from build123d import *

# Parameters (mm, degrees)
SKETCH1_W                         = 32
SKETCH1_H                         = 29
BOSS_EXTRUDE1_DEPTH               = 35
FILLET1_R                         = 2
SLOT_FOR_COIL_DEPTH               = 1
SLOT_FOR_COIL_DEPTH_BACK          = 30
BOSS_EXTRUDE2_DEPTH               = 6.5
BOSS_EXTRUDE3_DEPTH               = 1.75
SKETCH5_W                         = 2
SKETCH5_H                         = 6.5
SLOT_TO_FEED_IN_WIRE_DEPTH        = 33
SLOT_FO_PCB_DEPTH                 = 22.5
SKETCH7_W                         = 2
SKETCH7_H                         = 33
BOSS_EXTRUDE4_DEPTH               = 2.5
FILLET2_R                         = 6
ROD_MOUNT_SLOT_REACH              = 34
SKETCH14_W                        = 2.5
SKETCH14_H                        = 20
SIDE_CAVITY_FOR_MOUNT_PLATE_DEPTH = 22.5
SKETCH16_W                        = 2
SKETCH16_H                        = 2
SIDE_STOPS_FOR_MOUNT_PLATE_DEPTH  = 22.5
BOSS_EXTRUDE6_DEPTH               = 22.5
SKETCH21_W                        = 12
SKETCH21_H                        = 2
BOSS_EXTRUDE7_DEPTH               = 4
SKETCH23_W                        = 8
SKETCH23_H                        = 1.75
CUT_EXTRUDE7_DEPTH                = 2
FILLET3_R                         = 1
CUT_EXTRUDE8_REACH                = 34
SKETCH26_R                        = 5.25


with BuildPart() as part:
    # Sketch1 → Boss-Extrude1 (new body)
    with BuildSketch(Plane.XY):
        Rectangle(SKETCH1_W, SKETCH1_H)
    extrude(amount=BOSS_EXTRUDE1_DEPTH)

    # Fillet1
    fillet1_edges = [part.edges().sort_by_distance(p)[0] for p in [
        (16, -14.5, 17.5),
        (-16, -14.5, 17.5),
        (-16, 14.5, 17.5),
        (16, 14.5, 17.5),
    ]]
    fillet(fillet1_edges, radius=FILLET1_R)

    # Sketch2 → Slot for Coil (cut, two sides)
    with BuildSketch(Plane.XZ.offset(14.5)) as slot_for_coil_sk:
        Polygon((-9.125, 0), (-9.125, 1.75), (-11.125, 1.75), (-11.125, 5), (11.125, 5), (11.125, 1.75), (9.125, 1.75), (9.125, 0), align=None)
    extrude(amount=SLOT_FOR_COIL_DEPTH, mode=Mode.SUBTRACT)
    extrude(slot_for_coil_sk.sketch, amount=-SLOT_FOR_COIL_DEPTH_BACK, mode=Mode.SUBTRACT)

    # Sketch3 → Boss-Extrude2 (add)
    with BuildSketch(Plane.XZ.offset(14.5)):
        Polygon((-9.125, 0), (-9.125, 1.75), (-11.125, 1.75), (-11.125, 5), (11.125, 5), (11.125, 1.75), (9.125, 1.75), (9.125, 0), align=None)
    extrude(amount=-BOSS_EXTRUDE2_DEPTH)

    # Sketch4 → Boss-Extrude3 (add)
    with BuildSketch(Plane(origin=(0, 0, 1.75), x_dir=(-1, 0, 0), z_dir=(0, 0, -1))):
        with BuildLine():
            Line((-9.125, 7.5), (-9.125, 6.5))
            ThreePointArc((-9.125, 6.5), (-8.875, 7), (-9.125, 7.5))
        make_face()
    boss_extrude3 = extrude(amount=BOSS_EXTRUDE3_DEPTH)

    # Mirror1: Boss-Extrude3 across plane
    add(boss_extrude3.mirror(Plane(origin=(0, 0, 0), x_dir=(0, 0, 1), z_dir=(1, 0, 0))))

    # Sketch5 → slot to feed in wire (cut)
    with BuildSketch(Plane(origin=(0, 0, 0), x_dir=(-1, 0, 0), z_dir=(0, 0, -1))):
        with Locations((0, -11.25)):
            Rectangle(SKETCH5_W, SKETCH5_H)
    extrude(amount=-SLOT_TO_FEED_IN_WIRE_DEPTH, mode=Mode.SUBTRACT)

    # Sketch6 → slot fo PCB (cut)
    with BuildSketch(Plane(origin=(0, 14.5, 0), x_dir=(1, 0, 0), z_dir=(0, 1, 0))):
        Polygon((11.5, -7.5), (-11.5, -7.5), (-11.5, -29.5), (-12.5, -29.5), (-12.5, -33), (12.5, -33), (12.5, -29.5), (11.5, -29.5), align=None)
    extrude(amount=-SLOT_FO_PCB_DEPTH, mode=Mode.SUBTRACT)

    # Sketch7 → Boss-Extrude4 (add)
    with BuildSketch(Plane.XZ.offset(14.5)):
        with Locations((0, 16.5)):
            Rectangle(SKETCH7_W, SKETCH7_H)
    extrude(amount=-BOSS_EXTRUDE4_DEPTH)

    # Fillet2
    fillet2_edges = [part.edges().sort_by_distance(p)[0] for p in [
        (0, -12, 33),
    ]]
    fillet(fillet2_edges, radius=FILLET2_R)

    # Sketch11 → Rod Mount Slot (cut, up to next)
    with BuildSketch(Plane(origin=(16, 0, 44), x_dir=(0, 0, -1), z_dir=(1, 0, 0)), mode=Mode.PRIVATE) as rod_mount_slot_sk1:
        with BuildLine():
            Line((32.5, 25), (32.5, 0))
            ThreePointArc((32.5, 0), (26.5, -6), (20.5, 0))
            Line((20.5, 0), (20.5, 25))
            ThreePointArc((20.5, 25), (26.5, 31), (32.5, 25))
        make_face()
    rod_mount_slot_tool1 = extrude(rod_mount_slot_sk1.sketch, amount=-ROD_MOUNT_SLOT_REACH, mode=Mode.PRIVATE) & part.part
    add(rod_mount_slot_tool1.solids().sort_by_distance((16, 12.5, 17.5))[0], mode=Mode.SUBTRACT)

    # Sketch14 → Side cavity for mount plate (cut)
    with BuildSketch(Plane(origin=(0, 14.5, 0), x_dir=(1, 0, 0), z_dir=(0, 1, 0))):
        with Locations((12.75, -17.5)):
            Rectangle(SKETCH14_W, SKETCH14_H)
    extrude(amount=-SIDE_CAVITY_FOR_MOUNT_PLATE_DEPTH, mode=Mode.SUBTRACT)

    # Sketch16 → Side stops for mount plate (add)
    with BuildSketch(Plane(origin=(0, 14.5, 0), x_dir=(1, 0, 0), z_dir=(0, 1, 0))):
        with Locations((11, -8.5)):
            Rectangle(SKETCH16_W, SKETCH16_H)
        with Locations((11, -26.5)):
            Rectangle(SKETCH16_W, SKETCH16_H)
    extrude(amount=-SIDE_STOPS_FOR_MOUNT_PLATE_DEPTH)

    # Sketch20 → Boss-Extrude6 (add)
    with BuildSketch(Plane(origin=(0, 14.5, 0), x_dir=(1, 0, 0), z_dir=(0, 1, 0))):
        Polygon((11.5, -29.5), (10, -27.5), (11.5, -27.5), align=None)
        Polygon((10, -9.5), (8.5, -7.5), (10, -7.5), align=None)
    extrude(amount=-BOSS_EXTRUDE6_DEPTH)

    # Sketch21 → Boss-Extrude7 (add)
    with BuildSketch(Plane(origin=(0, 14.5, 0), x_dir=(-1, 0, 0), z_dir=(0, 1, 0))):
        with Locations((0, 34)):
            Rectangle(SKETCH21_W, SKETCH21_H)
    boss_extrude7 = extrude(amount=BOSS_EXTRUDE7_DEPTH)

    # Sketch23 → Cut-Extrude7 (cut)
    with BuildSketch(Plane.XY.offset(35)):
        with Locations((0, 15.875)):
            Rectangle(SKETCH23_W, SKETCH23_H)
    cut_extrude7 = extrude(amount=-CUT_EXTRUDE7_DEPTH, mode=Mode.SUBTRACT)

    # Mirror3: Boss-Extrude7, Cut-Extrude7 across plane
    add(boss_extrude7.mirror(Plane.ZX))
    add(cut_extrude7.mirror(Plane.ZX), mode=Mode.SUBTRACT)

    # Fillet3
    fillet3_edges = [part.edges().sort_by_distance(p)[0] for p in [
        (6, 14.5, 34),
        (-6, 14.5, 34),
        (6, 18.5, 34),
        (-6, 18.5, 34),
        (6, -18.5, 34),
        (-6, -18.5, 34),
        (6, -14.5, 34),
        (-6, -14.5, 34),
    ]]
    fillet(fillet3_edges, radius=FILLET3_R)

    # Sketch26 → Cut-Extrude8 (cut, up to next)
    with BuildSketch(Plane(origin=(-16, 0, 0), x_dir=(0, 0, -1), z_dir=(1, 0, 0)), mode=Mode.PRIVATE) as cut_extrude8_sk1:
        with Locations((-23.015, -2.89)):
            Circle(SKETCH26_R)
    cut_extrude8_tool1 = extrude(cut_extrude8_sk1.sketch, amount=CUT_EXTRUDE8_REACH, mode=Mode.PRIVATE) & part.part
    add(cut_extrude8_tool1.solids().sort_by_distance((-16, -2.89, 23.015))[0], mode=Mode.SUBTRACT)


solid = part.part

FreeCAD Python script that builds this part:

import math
import FreeCAD as App
import Part
import Sketcher
Q = App.Units.Quantity


def edges_at(feature, points):
    """Names of the edges that pass closest to the given points."""
    edges = feature.Shape.Edges
    near = lambda p: min(range(len(edges)), key=lambda i: edges[i].distToShape(Part.Vertex(*p))[0])
    return sorted({f"Edge{near(p) + 1}" for p in points})

doc = App.newDocument("Part")
body = doc.addObject("PartDesign::Body", "Body")

sketch1 = body.newObject("Sketcher::SketchObject", "Sketch")
sketch1.AttachmentSupport = (doc.getObject("XY_Plane"), [""])
sketch1.MapMode = "FlatFace"
sketch1.addGeometry([
    Part.LineSegment(App.Vector(-16, 14.5, 0), App.Vector(-16, -14.5, 0)),
    Part.LineSegment(App.Vector(-16, -14.5, 0), App.Vector(16, -14.5, 0)),
    Part.LineSegment(App.Vector(16, -14.5, 0), App.Vector(16, 14.5, 0)),
    Part.LineSegment(App.Vector(16, 14.5, 0), App.Vector(-16, 14.5, 0)),
], False)
sketch1.addConstraint([
    Sketcher.Constraint("Coincident", 0, 2, 1, 1),
    Sketcher.Constraint("Coincident", 1, 2, 2, 1),
    Sketcher.Constraint("Coincident", 2, 2, 3, 1),
    Sketcher.Constraint("Coincident", 3, 2, 0, 1),
    Sketcher.Constraint("Vertical", 0),
    Sketcher.Constraint("Horizontal", 1),
    Sketcher.Constraint("Vertical", 2),
    Sketcher.Constraint("Horizontal", 3),
    Sketcher.Constraint("Symmetric", 0, 2, 2, 2, -1, 1),
    Sketcher.Constraint("DistanceX", 1, 1, 1, 2, Q("32 mm")),
    Sketcher.Constraint("DistanceY", 0, 2, 0, 1, Q("29 mm")),
])
pad1 = body.newObject("PartDesign::Pad", "Pad")
pad1.Profile = sketch1
pad1.Length = 35
doc.recompute()

fillet = body.newObject("PartDesign::Fillet", "Fillet")
fillet.Base = (pad1, edges_at(pad1, [
    (16, -14.5, 17.5),
    (-16, -14.5, 17.5),
    (-16, 14.5, 17.5),
    (16, 14.5, 17.5),
]))
fillet.Radius = 2

sketch2 = body.newObject("Sketcher::SketchObject", "Sketch001")
sketch2.AttachmentSupport = (doc.getObject("XZ_Plane"), [""])
sketch2.MapMode = "FlatFace"
sketch2.AttachmentOffset = App.Placement(App.Vector(0, 0, 14.5), App.Rotation())
sketch2.addGeometry([
    Part.LineSegment(App.Vector(-9.125, 1.75, 0), App.Vector(-9.125, 0, 0)),
    Part.LineSegment(App.Vector(-9.125, 0, 0), App.Vector(9.125, 0, 0)),
    Part.LineSegment(App.Vector(9.125, 0, 0), App.Vector(9.125, 1.75, 0)),
    Part.LineSegment(App.Vector(9.125, 1.75, 0), App.Vector(11.125, 1.75, 0)),
    Part.LineSegment(App.Vector(11.125, 1.75, 0), App.Vector(11.125, 5, 0)),
    Part.LineSegment(App.Vector(11.125, 5, 0), App.Vector(-11.125, 5, 0)),
    Part.LineSegment(App.Vector(-11.125, 5, 0), App.Vector(-11.125, 1.75, 0)),
    Part.LineSegment(App.Vector(-11.125, 1.75, 0), App.Vector(-9.125, 1.75, 0)),
], False)
sketch2.addConstraint([
    Sketcher.Constraint("Coincident", 0, 2, 1, 1),
    Sketcher.Constraint("Coincident", 1, 2, 2, 1),
    Sketcher.Constraint("Coincident", 2, 2, 3, 1),
    Sketcher.Constraint("Coincident", 3, 2, 4, 1),
    Sketcher.Constraint("Coincident", 4, 2, 5, 1),
    Sketcher.Constraint("Coincident", 5, 2, 6, 1),
    Sketcher.Constraint("Coincident", 6, 2, 7, 1),
    Sketcher.Constraint("Coincident", 7, 2, 0, 1),
    Sketcher.Constraint("Vertical", 0),
    Sketcher.Constraint("Horizontal", 1),
    Sketcher.Constraint("Vertical", 2),
    Sketcher.Constraint("Horizontal", 3),
    Sketcher.Constraint("Vertical", 4),
    Sketcher.Constraint("Horizontal", 5),
    Sketcher.Constraint("Vertical", 6),
    Sketcher.Constraint("Horizontal", 7),
    Sketcher.Constraint("Symmetric", 0, 2, 1, 2, -1, 1),
    Sketcher.Constraint("Symmetric", 3, 2, 6, 2, -2),
    Sketcher.Constraint("DistanceX", 3, 1, 3, 2, Q("2 mm")),
    Sketcher.Constraint("DistanceY", -1, 1, 4, 2, Q("5 mm")),
    Sketcher.Constraint("DistanceX", 1, 1, 1, 2, Q("18.25 mm")),
    Sketcher.Constraint("DistanceY", 0, 2, 0, 1, Q("1.75 mm")),
])
pocket1 = body.newObject("PartDesign::Pocket", "Pocket")
pocket1.Profile = sketch2
pocket1.Type = "ThroughAll"
pocket1.Midplane = True

sketch3 = body.newObject("Sketcher::SketchObject", "Sketch002")
sketch3.AttachmentSupport = (doc.getObject("XZ_Plane"), [""])
sketch3.MapMode = "FlatFace"
sketch3.AttachmentOffset = App.Placement(App.Vector(0, 0, 14.5), App.Rotation())
sketch3.addGeometry([
    Part.LineSegment(App.Vector(-9.125, 1.75, 0), App.Vector(-9.125, 0, 0)),
    Part.LineSegment(App.Vector(-9.125, 0, 0), App.Vector(9.125, 0, 0)),
    Part.LineSegment(App.Vector(9.125, 0, 0), App.Vector(9.125, 1.75, 0)),
    Part.LineSegment(App.Vector(9.125, 1.75, 0), App.Vector(11.125, 1.75, 0)),
    Part.LineSegment(App.Vector(11.125, 1.75, 0), App.Vector(11.125, 5, 0)),
    Part.LineSegment(App.Vector(11.125, 5, 0), App.Vector(-11.125, 5, 0)),
    Part.LineSegment(App.Vector(-11.125, 5, 0), App.Vector(-11.125, 1.75, 0)),
    Part.LineSegment(App.Vector(-11.125, 1.75, 0), App.Vector(-9.125, 1.75, 0)),
], False)
sketch3.addConstraint([
    Sketcher.Constraint("Coincident", 0, 2, 1, 1),
    Sketcher.Constraint("Coincident", 1, 2, 2, 1),
    Sketcher.Constraint("Coincident", 2, 2, 3, 1),
    Sketcher.Constraint("Coincident", 3, 2, 4, 1),
    Sketcher.Constraint("Coincident", 4, 2, 5, 1),
    Sketcher.Constraint("Coincident", 5, 2, 6, 1),
    Sketcher.Constraint("Coincident", 6, 2, 7, 1),
    Sketcher.Constraint("Coincident", 7, 2, 0, 1),
    Sketcher.Constraint("Vertical", 0),
    Sketcher.Constraint("Horizontal", 1),
    Sketcher.Constraint("Vertical", 2),
    Sketcher.Constraint("Horizontal", 3),
    Sketcher.Constraint("Vertical", 4),
    Sketcher.Constraint("Horizontal", 5),
    Sketcher.Constraint("Vertical", 6),
    Sketcher.Constraint("Horizontal", 7),
    Sketcher.Constraint("Symmetric", 0, 2, 1, 2, -1, 1),
    Sketcher.Constraint("Symmetric", 3, 2, 6, 2, -2),
    Sketcher.Constraint("DistanceX", 3, 1, 3, 2, Q("2 mm")),
    Sketcher.Constraint("DistanceY", -1, 1, 4, 2, Q("5 mm")),
    Sketcher.Constraint("DistanceX", 1, 1, 1, 2, Q("18.25 mm")),
    Sketcher.Constraint("DistanceY", 0, 2, 0, 1, Q("1.75 mm")),
])
pad2 = body.newObject("PartDesign::Pad", "Pad001")
pad2.Profile = sketch3
pad2.Length = 6.5
pad2.Reversed = True

sketch4 = body.newObject("Sketcher::SketchObject", "Sketch003")
sketch4.AttachmentSupport = (doc.getObject("XY_Plane"), [""])
sketch4.MapMode = "FlatFace"
sketch4.AttachmentOffset = App.Placement(App.Vector(0, 0, 1.75), App.Rotation())
sketch4.addGeometry([
    Part.LineSegment(App.Vector(9.125, 7.5, 0), App.Vector(9.125, 6.5, 0)),
    Part.ArcOfCircle(Part.Circle(App.Vector(9.5, 7, 0), App.Vector(0, 0, 1), 0.625), math.radians(126.869898), math.radians(233.130102)),
], False)
sketch4.addConstraint([
    Sketcher.Constraint("Coincident", 0, 1, 1, 1),
    Sketcher.Constraint("Coincident", 1, 2, 0, 2),
    Sketcher.Constraint("Vertical", 0),
    Sketcher.Constraint("DistanceY", 0, 2, 0, 1, Q("1 mm")),
    Sketcher.Constraint("DistanceY", -1, 1, 1, 3, Q("7 mm")),
    Sketcher.Constraint("Radius", 1, Q("0.625 mm")),
    Sketcher.Constraint("DistanceX", -1, 1, 1, 3, Q("9.5 mm")),
])
pad3 = body.newObject("PartDesign::Pad", "Pad002")
pad3.Profile = sketch4
pad3.Length = 1.75
pad3.Reversed = True
doc.recompute()

mirrored = body.newObject("PartDesign::Mirrored", "Mirrored")
mirrored.Originals = [pad3]
mirrored.MirrorPlane = (doc.getObject("YZ_Plane"), [""])
body.Tip = mirrored

sketch5 = body.newObject("Sketcher::SketchObject", "Sketch004")
sketch5.AttachmentSupport = (doc.getObject("XY_Plane"), [""])
sketch5.MapMode = "FlatFace"
sketch5.addGeometry([
    Part.LineSegment(App.Vector(1, -8, 0), App.Vector(1, -14.5, 0)),
    Part.LineSegment(App.Vector(1, -14.5, 0), App.Vector(-1, -14.5, 0)),
    Part.LineSegment(App.Vector(-1, -14.5, 0), App.Vector(-1, -8, 0)),
    Part.LineSegment(App.Vector(-1, -8, 0), App.Vector(1, -8, 0)),
], False)
sketch5.addConstraint([
    Sketcher.Constraint("Coincident", 0, 2, 1, 1),
    Sketcher.Constraint("Coincident", 1, 2, 2, 1),
    Sketcher.Constraint("Coincident", 2, 2, 3, 1),
    Sketcher.Constraint("Coincident", 3, 2, 0, 1),
    Sketcher.Constraint("Vertical", 0),
    Sketcher.Constraint("Horizontal", 1),
    Sketcher.Constraint("Vertical", 2),
    Sketcher.Constraint("Horizontal", 3),
    Sketcher.Constraint("DistanceX", 1, 2, 1, 1, Q("2 mm")),
    Sketcher.Constraint("DistanceY", 0, 2, 0, 1, Q("6.5 mm")),
    Sketcher.Constraint("DistanceX", -1, 1, 0, 2, Q("1 mm")),
    Sketcher.Constraint("DistanceY", 2, 2, -1, 1, Q("8 mm")),
])
pocket2 = body.newObject("PartDesign::Pocket", "Pocket001")
pocket2.Profile = sketch5
pocket2.Length = 33
pocket2.Reversed = True

sketch6 = body.newObject("Sketcher::SketchObject", "Sketch005")
sketch6.AttachmentSupport = (doc.getObject("XZ_Plane"), [""])
sketch6.MapMode = "FlatFace"
sketch6.AttachmentOffset = App.Placement(App.Vector(0, 0, -14.5), App.Rotation())
sketch6.addGeometry([
    Part.LineSegment(App.Vector(11.5, 7.5, 0), App.Vector(-11.5, 7.5, 0)),
    Part.LineSegment(App.Vector(-11.5, 7.5, 0), App.Vector(-11.5, 29.5, 0)),
    Part.LineSegment(App.Vector(-11.5, 29.5, 0), App.Vector(-12.5, 29.5, 0)),
    Part.LineSegment(App.Vector(-12.5, 29.5, 0), App.Vector(-12.5, 33, 0)),
    Part.LineSegment(App.Vector(-12.5, 33, 0), App.Vector(12.5, 33, 0)),
    Part.LineSegment(App.Vector(12.5, 33, 0), App.Vector(12.5, 29.5, 0)),
    Part.LineSegment(App.Vector(12.5, 29.5, 0), App.Vector(11.5, 29.5, 0)),
    Part.LineSegment(App.Vector(11.5, 29.5, 0), App.Vector(11.5, 7.5, 0)),
], False)
sketch6.addConstraint([
    Sketcher.Constraint("Coincident", 0, 2, 1, 1),
    Sketcher.Constraint("Coincident", 1, 2, 2, 1),
    Sketcher.Constraint("Coincident", 2, 2, 3, 1),
    Sketcher.Constraint("Coincident", 3, 2, 4, 1),
    Sketcher.Constraint("Coincident", 4, 2, 5, 1),
    Sketcher.Constraint("Coincident", 5, 2, 6, 1),
    Sketcher.Constraint("Coincident", 6, 2, 7, 1),
    Sketcher.Constraint("Coincident", 7, 2, 0, 1),
    Sketcher.Constraint("Horizontal", 0),
    Sketcher.Constraint("Vertical", 1),
    Sketcher.Constraint("Horizontal", 2),
    Sketcher.Constraint("Vertical", 3),
    Sketcher.Constraint("Horizontal", 4),
    Sketcher.Constraint("Vertical", 5),
    Sketcher.Constraint("Horizontal", 6),
    Sketcher.Constraint("Vertical", 7),
    Sketcher.Constraint("Symmetric", 2, 2, 5, 2, -2),
    Sketcher.Constraint("Equal", 2, 6),
    Sketcher.Constraint("DistanceX", 0, 2, 0, 1, Q("23 mm")),
    Sketcher.Constraint("DistanceX", 2, 2, 2, 1, Q("1 mm")),
    Sketcher.Constraint("DistanceY", 1, 1, 1, 2, Q("22 mm")),
    Sketcher.Constraint("DistanceY", 3, 1, 3, 2, Q("3.5 mm")),
    Sketcher.Constraint("DistanceY", -1, 1, 3, 2, Q("33 mm")),
])
pocket3 = body.newObject("PartDesign::Pocket", "Pocket002")
pocket3.Profile = sketch6
pocket3.Length = 22.5
pocket3.Reversed = True

sketch7 = body.newObject("Sketcher::SketchObject", "Sketch006")
sketch7.AttachmentSupport = (doc.getObject("XZ_Plane"), [""])
sketch7.MapMode = "FlatFace"
sketch7.AttachmentOffset = App.Placement(App.Vector(0, 0, 14.5), App.Rotation())
sketch7.addGeometry([
    Part.LineSegment(App.Vector(-1, 33, 0), App.Vector(-1, 0, 0)),
    Part.LineSegment(App.Vector(-1, 0, 0), App.Vector(1, 0, 0)),
    Part.LineSegment(App.Vector(1, 0, 0), App.Vector(1, 33, 0)),
    Part.LineSegment(App.Vector(1, 33, 0), App.Vector(-1, 33, 0)),
], False)
sketch7.addConstraint([
    Sketcher.Constraint("Coincident", 0, 2, 1, 1),
    Sketcher.Constraint("Coincident", 1, 2, 2, 1),
    Sketcher.Constraint("Coincident", 2, 2, 3, 1),
    Sketcher.Constraint("Coincident", 3, 2, 0, 1),
    Sketcher.Constraint("Vertical", 0),
    Sketcher.Constraint("Horizontal", 1),
    Sketcher.Constraint("Vertical", 2),
    Sketcher.Constraint("Horizontal", 3),
    Sketcher.Constraint("Symmetric", 0, 2, 1, 2, -1, 1),
    Sketcher.Constraint("DistanceX", 1, 1, 1, 2, Q("2 mm")),
    Sketcher.Constraint("DistanceY", 0, 2, 0, 1, Q("33 mm")),
])
pad4 = body.newObject("PartDesign::Pad", "Pad003")
pad4.Profile = sketch7
pad4.Length = 2.5
pad4.Reversed = True
doc.recompute()

fillet2 = body.newObject("PartDesign::Fillet", "Fillet001")
fillet2.Base = (pad4, edges_at(pad4, [(0, -12, 33)]))
fillet2.Radius = 6

sketch8 = body.newObject("Sketcher::SketchObject", "Sketch007")
sketch8.AttachmentSupport = (doc.getObject("YZ_Plane"), [""])
sketch8.MapMode = "FlatFace"
sketch8.AttachmentOffset = App.Placement(App.Vector(0, 0, 16), App.Rotation())
sketch8.addGeometry([
    Part.LineSegment(App.Vector(0, 11.5, 0), App.Vector(25, 11.5, 0)),
    Part.ArcOfCircle(Part.Circle(App.Vector(25, 17.5, 0), App.Vector(0, 0, 1), 6), math.radians(-90), math.radians(90)),
    Part.LineSegment(App.Vector(25, 23.5, 0), App.Vector(0, 23.5, 0)),
    Part.ArcOfCircle(Part.Circle(App.Vector(0, 17.5, 0), App.Vector(0, 0, 1), 6), math.radians(90), math.radians(270)),
], False)
sketch8.addConstraint([
    Sketcher.Constraint("Tangent", 0, 2, 1, 1),
    Sketcher.Constraint("Tangent", 1, 2, 2, 1),
    Sketcher.Constraint("Tangent", 2, 2, 3, 1),
    Sketcher.Constraint("Tangent", 3, 2, 0, 1),
    Sketcher.Constraint("Horizontal", 0),
    Sketcher.Constraint("Horizontal", 2),
    Sketcher.Constraint("PointOnObject", 3, 3, -2),
    Sketcher.Constraint("Radius", 1, Q("6 mm")),
    Sketcher.Constraint("DistanceX", 0, 1, 0, 2, Q("25 mm")),
    Sketcher.Constraint("DistanceY", -1, 1, 1, 3, Q("17.5 mm")),
])
pocket4 = body.newObject("PartDesign::Pocket", "Pocket003")
pocket4.Profile = sketch8
pocket4.Type = "UpToFirst"

sketch9 = body.newObject("Sketcher::SketchObject", "Sketch008")
sketch9.AttachmentSupport = (doc.getObject("XZ_Plane"), [""])
sketch9.MapMode = "FlatFace"
sketch9.AttachmentOffset = App.Placement(App.Vector(0, 0, -14.5), App.Rotation())
sketch9.addGeometry([
    Part.LineSegment(App.Vector(11.5, 7.5, 0), App.Vector(11.5, 27.5, 0)),
    Part.LineSegment(App.Vector(11.5, 27.5, 0), App.Vector(14, 27.5, 0)),
    Part.LineSegment(App.Vector(14, 27.5, 0), App.Vector(14, 7.5, 0)),
    Part.LineSegment(App.Vector(14, 7.5, 0), App.Vector(11.5, 7.5, 0)),
], False)
sketch9.addConstraint([
    Sketcher.Constraint("Coincident", 0, 2, 1, 1),
    Sketcher.Constraint("Coincident", 1, 2, 2, 1),
    Sketcher.Constraint("Coincident", 2, 2, 3, 1),
    Sketcher.Constraint("Coincident", 3, 2, 0, 1),
    Sketcher.Constraint("Vertical", 0),
    Sketcher.Constraint("Horizontal", 1),
    Sketcher.Constraint("Vertical", 2),
    Sketcher.Constraint("Horizontal", 3),
    Sketcher.Constraint("DistanceY", 0, 1, 0, 2, Q("20 mm")),
    Sketcher.Constraint("DistanceX", 1, 1, 1, 2, Q("2.5 mm")),
    Sketcher.Constraint("DistanceX", -1, 1, 1, 2, Q("14 mm")),
    Sketcher.Constraint("DistanceY", -1, 1, 0, 2, Q("27.5 mm")),
])
pocket5 = body.newObject("PartDesign::Pocket", "Pocket004")
pocket5.Profile = sketch9
pocket5.Length = 22.5
pocket5.Reversed = True

sketch10 = body.newObject("Sketcher::SketchObject", "Sketch009")
sketch10.AttachmentSupport = (doc.getObject("XZ_Plane"), [""])
sketch10.MapMode = "FlatFace"
sketch10.AttachmentOffset = App.Placement(App.Vector(0, 0, -14.5), App.Rotation())
sketch10.addGeometry([
    Part.LineSegment(App.Vector(10, 7.5, 0), App.Vector(10, 9.5, 0)),
    Part.LineSegment(App.Vector(10, 9.5, 0), App.Vector(12, 9.5, 0)),
    Part.LineSegment(App.Vector(12, 9.5, 0), App.Vector(12, 7.5, 0)),
    Part.LineSegment(App.Vector(12, 7.5, 0), App.Vector(10, 7.5, 0)),
    Part.LineSegment(App.Vector(10, 25.5, 0), App.Vector(10, 27.5, 0)),
    Part.LineSegment(App.Vector(10, 27.5, 0), App.Vector(12, 27.5, 0)),
    Part.LineSegment(App.Vector(12, 27.5, 0), App.Vector(12, 25.5, 0)),
    Part.LineSegment(App.Vector(12, 25.5, 0), App.Vector(10, 25.5, 0)),
], False)
sketch10.addConstraint([
    Sketcher.Constraint("Coincident", 0, 2, 1, 1),
    Sketcher.Constraint("Coincident", 1, 2, 2, 1),
    Sketcher.Constraint("Coincident", 2, 2, 3, 1),
    Sketcher.Constraint("Coincident", 3, 2, 0, 1),
    Sketcher.Constraint("Coincident", 4, 2, 5, 1),
    Sketcher.Constraint("Coincident", 5, 2, 6, 1),
    Sketcher.Constraint("Coincident", 6, 2, 7, 1),
    Sketcher.Constraint("Coincident", 7, 2, 4, 1),
    Sketcher.Constraint("Vertical", 0),
    Sketcher.Constraint("Horizontal", 1),
    Sketcher.Constraint("Vertical", 2),
    Sketcher.Constraint("Horizontal", 3),
    Sketcher.Constraint("Vertical", 4),
    Sketcher.Constraint("Horizontal", 5),
    Sketcher.Constraint("Vertical", 6),
    Sketcher.Constraint("Horizontal", 7),
    Sketcher.Constraint("Vertical", 3, 2, 4, 2),
    Sketcher.Constraint("Vertical", 2, 2, 5, 2),
    Sketcher.Constraint("Equal", 7, 0),
    Sketcher.Constraint("Equal", 2, 4),
    Sketcher.Constraint("DistanceX", 1, 1, 1, 2, Q("2 mm")),
    Sketcher.Constraint("DistanceX", -1, 1, 0, 2, Q("10 mm")),
    Sketcher.Constraint("DistanceY", 0, 2, 4, 2, Q("18 mm")),
    Sketcher.Constraint("DistanceY", -1, 1, 0, 2, Q("9.5 mm")),
])
pad5 = body.newObject("PartDesign::Pad", "Pad004")
pad5.Profile = sketch10
pad5.Length = 22.5

sketch11 = body.newObject("Sketcher::SketchObject", "Sketch010")
sketch11.AttachmentSupport = (doc.getObject("XZ_Plane"), [""])
sketch11.MapMode = "FlatFace"
sketch11.AttachmentOffset = App.Placement(App.Vector(0, 0, -14.5), App.Rotation())
sketch11.addGeometry([
    Part.LineSegment(App.Vector(10, 27.5, 0), App.Vector(11.5, 29.5, 0)),
    Part.LineSegment(App.Vector(11.5, 29.5, 0), App.Vector(11.5, 27.5, 0)),
    Part.LineSegment(App.Vector(11.5, 27.5, 0), App.Vector(10, 27.5, 0)),
    Part.LineSegment(App.Vector(8.5, 7.5, 0), App.Vector(10, 9.5, 0)),
    Part.LineSegment(App.Vector(10, 9.5, 0), App.Vector(10, 7.5, 0)),
    Part.LineSegment(App.Vector(10, 7.5, 0), App.Vector(8.5, 7.5, 0)),
], False)
sketch11.addConstraint([
    Sketcher.Constraint("Coincident", 0, 2, 1, 1),
    Sketcher.Constraint("Coincident", 1, 2, 2, 1),
    Sketcher.Constraint("Coincident", 2, 2, 0, 1),
    Sketcher.Constraint("Coincident", 3, 2, 4, 1),
    Sketcher.Constraint("Coincident", 4, 2, 5, 1),
    Sketcher.Constraint("Coincident", 5, 2, 3, 1),
    Sketcher.Constraint("Vertical", 1),
    Sketcher.Constraint("Horizontal", 2),
    Sketcher.Constraint("Vertical", 4),
    Sketcher.Constraint("Horizontal", 5),
    Sketcher.Constraint("Parallel", 0, 3),
    Sketcher.Constraint("Vertical", 2, 2, 3, 2),
    Sketcher.Constraint("Equal", 2, 5),
    Sketcher.Constraint("DistanceY", 1, 2, 1, 1, Q("2 mm")),
    Sketcher.Constraint("DistanceX", 2, 2, 2, 1, Q("1.5 mm")),
    Sketcher.Constraint("DistanceX", -1, 1, 2, 2, Q("10 mm")),
    Sketcher.Constraint("DistanceY", 3, 2, 2, 2, Q("18 mm")),
    Sketcher.Constraint("DistanceY", -1, 1, 0, 2, Q("29.5 mm")),
])
pad6 = body.newObject("PartDesign::Pad", "Pad005")
pad6.Profile = sketch11
pad6.Length = 22.5

sketch12 = body.newObject("Sketcher::SketchObject", "Sketch011")
sketch12.AttachmentSupport = (doc.getObject("XZ_Plane"), [""])
sketch12.MapMode = "FlatFace"
sketch12.AttachmentOffset = App.Placement(App.Vector(0, 0, -14.5), App.Rotation())
sketch12.addGeometry([
    Part.LineSegment(App.Vector(6, 35, 0), App.Vector(6, 33, 0)),
    Part.LineSegment(App.Vector(6, 33, 0), App.Vector(-6, 33, 0)),
    Part.LineSegment(App.Vector(-6, 33, 0), App.Vector(-6, 35, 0)),
    Part.LineSegment(App.Vector(-6, 35, 0), App.Vector(6, 35, 0)),
], False)
sketch12.addConstraint([
    Sketcher.Constraint("Coincident", 0, 2, 1, 1),
    Sketcher.Constraint("Coincident", 1, 2, 2, 1),
    Sketcher.Constraint("Coincident", 2, 2, 3, 1),
    Sketcher.Constraint("Coincident", 3, 2, 0, 1),
    Sketcher.Constraint("Vertical", 0),
    Sketcher.Constraint("Horizontal", 1),
    Sketcher.Constraint("Vertical", 2),
    Sketcher.Constraint("Horizontal", 3),
    Sketcher.Constraint("DistanceX", 1, 2, 1, 1, Q("12 mm")),
    Sketcher.Constraint("DistanceY", 0, 2, 0, 1, Q("2 mm")),
    Sketcher.Constraint("DistanceX", -1, 1, 0, 2, Q("6 mm")),
    Sketcher.Constraint("DistanceY", -1, 1, 0, 2, Q("33 mm")),
])
pad7 = body.newObject("PartDesign::Pad", "Pad006")
pad7.Profile = sketch12
pad7.Length = 4
pad7.Reversed = True

sketch13 = body.newObject("Sketcher::SketchObject", "Sketch012")
sketch13.AttachmentSupport = (doc.getObject("XY_Plane"), [""])
sketch13.MapMode = "FlatFace"
sketch13.AttachmentOffset = App.Placement(App.Vector(0, 0, 35), App.Rotation())
sketch13.addGeometry([
    Part.LineSegment(App.Vector(-4, 16.75, 0), App.Vector(-4, 15, 0)),
    Part.LineSegment(App.Vector(-4, 15, 0), App.Vector(4, 15, 0)),
    Part.LineSegment(App.Vector(4, 15, 0), App.Vector(4, 16.75, 0)),
    Part.LineSegment(App.Vector(4, 16.75, 0), App.Vector(-4, 16.75, 0)),
], False)
sketch13.addConstraint([
    Sketcher.Constraint("Coincident", 0, 2, 1, 1),
    Sketcher.Constraint("Coincident", 1, 2, 2, 1),
    Sketcher.Constraint("Coincident", 2, 2, 3, 1),
    Sketcher.Constraint("Coincident", 3, 2, 0, 1),
    Sketcher.Constraint("Vertical", 0),
    Sketcher.Constraint("Horizontal", 1),
    Sketcher.Constraint("Vertical", 2),
    Sketcher.Constraint("Horizontal", 3),
    Sketcher.Constraint("DistanceX", 1, 1, 1, 2, Q("8 mm")),
    Sketcher.Constraint("DistanceX", 0, 2, -1, 1, Q("4 mm")),
    Sketcher.Constraint("DistanceY", -1, 1, 0, 2, Q("15 mm")),
    Sketcher.Constraint("DistanceY", 0, 2, 0, 1, Q("1.75 mm")),
])
pocket6 = body.newObject("PartDesign::Pocket", "Pocket005")
pocket6.Profile = sketch13
pocket6.Length = 2
doc.recompute()

mirrored2 = body.newObject("PartDesign::Mirrored", "Mirrored001")
mirrored2.Originals = [pad7, pocket6]
mirrored2.MirrorPlane = (doc.getObject("XZ_Plane"), [""])
body.Tip = mirrored2
doc.recompute()

fillet3 = body.newObject("PartDesign::Fillet", "Fillet002")
fillet3.Base = (mirrored2, edges_at(mirrored2, [
    (6, 14.5, 34),
    (-6, 14.5, 34),
    (6, 18.5, 34),
    (-6, 18.5, 34),
    (6, -18.5, 34),
    (-6, -18.5, 34),
    (6, -14.5, 34),
    (-6, -14.5, 34),
]))
fillet3.Radius = 1

sketch14 = body.newObject("Sketcher::SketchObject", "Sketch013")
sketch14.AttachmentSupport = (doc.getObject("YZ_Plane"), [""])
sketch14.MapMode = "FlatFace"
sketch14.AttachmentOffset = App.Placement(App.Vector(0, 0, -16), App.Rotation())
sketch14.addGeometry(Part.Circle(App.Vector(-2.89, 23.015, 0), App.Vector(0, 0, 1), 5.25), False)
sketch14.addConstraint([
    Sketcher.Constraint("Diameter", 0, Q("10.5 mm")),
    Sketcher.Constraint("DistanceX", 0, 3, -1, 1, Q("2.89 mm")),
    Sketcher.Constraint("DistanceY", -1, 1, 0, 3, Q("23.015 mm")),
])
pocket7 = body.newObject("PartDesign::Pocket", "Pocket006")
pocket7.Profile = sketch14
pocket7.Length = 15
pocket7.Reversed = True

doc.recompute()
